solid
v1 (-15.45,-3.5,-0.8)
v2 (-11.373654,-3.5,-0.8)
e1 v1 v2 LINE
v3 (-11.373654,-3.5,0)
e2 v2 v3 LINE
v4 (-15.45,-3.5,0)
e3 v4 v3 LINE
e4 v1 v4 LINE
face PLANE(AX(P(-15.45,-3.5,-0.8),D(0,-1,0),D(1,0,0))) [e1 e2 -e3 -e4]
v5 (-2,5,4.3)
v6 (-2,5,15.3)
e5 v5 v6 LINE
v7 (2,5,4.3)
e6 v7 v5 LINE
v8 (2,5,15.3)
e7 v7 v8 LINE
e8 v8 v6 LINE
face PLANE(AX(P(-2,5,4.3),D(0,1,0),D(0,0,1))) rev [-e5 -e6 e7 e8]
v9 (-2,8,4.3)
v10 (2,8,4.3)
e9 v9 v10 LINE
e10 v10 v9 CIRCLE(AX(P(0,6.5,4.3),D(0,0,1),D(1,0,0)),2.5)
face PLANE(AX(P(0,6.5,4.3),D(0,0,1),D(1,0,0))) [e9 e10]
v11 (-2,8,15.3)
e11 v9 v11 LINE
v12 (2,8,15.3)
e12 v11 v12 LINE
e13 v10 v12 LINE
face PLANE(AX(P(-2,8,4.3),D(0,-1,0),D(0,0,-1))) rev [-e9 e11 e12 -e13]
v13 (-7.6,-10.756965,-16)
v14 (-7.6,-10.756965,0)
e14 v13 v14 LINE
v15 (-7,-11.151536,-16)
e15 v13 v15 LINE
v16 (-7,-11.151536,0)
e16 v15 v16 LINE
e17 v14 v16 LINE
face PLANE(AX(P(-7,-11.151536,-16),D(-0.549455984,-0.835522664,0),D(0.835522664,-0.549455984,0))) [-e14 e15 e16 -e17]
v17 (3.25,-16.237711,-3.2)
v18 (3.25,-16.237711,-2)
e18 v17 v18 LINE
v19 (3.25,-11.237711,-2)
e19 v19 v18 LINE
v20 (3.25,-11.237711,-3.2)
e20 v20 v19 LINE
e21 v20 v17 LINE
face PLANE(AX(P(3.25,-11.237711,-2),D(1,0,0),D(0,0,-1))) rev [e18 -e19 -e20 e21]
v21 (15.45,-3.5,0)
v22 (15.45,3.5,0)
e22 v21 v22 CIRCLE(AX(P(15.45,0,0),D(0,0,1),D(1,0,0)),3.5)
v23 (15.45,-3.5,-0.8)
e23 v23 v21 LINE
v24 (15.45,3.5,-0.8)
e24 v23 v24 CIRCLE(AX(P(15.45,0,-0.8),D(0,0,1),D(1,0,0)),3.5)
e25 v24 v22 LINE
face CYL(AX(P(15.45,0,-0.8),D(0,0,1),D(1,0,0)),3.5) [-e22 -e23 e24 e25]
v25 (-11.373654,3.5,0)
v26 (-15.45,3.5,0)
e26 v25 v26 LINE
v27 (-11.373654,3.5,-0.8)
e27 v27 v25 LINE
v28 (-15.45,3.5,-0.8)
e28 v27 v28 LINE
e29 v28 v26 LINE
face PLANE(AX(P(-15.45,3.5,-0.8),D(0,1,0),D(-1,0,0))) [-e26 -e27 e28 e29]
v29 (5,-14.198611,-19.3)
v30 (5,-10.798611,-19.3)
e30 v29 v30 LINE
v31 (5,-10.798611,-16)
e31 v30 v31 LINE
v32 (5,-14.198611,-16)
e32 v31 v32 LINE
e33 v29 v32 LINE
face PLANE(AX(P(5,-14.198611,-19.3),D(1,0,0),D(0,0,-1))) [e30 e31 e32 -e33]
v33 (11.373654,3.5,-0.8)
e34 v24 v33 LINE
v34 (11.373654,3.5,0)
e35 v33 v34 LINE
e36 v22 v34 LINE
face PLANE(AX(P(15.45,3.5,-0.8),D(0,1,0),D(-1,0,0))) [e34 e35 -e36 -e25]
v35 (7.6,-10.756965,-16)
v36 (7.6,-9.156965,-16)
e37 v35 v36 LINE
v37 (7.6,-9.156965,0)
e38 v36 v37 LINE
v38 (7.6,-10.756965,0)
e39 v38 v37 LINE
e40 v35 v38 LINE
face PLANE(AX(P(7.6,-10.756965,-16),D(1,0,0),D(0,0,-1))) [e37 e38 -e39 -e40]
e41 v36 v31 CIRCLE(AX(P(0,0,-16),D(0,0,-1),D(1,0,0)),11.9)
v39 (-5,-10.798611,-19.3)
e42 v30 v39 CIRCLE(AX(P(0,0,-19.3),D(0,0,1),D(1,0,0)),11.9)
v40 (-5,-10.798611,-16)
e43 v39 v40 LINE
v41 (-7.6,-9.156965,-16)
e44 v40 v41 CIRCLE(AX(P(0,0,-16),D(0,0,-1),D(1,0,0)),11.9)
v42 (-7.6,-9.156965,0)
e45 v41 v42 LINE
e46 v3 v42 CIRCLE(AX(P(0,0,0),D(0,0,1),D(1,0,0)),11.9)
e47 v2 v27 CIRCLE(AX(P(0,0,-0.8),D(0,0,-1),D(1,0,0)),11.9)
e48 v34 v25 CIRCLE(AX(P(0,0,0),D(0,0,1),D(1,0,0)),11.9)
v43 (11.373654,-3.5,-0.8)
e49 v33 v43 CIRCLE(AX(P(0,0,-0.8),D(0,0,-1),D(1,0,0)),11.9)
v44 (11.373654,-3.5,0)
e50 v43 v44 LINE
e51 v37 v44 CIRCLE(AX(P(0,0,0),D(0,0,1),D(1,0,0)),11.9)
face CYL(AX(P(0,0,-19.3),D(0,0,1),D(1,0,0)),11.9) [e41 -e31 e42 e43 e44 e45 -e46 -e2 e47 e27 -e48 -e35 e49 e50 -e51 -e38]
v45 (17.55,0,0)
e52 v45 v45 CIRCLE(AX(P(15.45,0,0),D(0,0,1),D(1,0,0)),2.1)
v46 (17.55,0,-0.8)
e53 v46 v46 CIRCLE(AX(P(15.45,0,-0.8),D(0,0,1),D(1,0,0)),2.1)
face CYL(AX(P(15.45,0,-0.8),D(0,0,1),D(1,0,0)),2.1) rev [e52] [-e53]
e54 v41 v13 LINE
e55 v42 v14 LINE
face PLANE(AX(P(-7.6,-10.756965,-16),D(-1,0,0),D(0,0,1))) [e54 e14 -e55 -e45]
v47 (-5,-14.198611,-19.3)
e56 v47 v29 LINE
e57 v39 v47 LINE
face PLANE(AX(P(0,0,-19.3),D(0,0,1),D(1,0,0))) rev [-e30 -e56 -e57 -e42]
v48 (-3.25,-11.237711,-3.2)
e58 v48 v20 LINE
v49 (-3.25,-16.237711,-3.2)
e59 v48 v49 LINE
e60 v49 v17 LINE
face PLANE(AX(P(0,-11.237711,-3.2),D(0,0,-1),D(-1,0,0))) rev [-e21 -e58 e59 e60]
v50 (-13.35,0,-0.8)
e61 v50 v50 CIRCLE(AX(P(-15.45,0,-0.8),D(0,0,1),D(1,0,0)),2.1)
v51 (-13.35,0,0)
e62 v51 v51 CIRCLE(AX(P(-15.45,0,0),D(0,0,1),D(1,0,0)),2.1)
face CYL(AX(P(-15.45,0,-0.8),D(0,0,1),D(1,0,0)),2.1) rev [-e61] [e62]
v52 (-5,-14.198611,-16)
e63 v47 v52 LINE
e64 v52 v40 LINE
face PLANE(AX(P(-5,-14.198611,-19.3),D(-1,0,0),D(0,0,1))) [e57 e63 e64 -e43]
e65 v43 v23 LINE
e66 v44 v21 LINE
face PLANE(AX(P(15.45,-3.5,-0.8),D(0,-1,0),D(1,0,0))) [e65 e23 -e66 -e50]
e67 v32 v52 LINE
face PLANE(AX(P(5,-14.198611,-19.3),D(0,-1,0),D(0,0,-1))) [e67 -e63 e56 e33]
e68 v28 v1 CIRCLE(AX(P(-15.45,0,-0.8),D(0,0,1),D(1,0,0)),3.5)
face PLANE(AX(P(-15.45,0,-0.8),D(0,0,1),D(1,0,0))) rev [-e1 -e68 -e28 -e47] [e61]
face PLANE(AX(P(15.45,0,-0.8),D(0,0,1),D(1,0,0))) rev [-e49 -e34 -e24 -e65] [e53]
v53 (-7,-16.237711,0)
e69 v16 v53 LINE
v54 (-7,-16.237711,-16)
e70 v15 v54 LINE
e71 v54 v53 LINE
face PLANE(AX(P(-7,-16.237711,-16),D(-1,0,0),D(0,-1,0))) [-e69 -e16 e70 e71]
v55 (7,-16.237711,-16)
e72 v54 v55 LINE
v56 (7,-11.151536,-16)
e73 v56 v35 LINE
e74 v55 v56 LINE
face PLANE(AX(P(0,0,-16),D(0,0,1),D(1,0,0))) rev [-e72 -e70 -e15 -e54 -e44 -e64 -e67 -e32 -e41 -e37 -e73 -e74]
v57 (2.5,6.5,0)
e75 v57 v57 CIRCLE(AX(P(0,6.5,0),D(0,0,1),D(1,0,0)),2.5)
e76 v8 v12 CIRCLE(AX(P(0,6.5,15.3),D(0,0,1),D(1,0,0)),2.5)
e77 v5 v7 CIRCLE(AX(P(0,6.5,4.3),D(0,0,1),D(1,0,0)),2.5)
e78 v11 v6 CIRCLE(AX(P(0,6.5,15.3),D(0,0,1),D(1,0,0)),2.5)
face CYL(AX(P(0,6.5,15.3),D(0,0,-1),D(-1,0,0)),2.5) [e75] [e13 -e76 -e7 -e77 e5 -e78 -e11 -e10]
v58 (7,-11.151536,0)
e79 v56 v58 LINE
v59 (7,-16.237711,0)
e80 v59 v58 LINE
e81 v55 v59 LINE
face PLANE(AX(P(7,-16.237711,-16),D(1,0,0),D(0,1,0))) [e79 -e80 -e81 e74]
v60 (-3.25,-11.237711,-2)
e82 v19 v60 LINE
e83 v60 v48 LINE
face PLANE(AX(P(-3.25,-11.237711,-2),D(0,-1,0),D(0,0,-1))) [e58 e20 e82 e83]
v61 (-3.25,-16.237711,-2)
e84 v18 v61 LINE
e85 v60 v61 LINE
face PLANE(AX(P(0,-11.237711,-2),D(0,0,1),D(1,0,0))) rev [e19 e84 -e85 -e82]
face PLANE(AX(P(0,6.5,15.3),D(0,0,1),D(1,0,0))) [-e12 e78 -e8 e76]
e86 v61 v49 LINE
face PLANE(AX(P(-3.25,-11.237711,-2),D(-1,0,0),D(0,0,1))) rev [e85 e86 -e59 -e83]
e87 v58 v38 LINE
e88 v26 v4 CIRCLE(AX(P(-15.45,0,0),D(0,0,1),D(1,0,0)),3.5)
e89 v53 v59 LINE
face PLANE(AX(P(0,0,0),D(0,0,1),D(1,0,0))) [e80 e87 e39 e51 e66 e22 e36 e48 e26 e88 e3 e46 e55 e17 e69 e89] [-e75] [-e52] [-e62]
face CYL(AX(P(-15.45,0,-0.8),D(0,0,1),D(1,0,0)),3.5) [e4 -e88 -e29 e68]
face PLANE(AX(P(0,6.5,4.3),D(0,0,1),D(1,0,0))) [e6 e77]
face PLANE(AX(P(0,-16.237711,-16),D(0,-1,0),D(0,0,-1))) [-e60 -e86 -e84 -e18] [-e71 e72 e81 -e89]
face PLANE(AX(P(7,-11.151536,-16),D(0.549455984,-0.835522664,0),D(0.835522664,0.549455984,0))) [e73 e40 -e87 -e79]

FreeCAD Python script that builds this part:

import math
import FreeCAD as App
import Part
import Sketcher

V = App.Vector
Q = App.Units.Quantity


def add_polygon(sketch, points):
    """Adds a closed chain of lines whose ends are joined by coincident constraints."""
    first, n = sketch.GeometryCount, len(points)
    for a, b in zip(points, points[1:] + points[:1]):
        sketch.addGeometry(Part.LineSegment(App.Vector(*a, 0), App.Vector(*b, 0)), False)
    for i in range(n):
        sketch.addConstraint(Sketcher.Constraint("Coincident", first + i, 2, first + (i + 1) % n, 1))

doc = App.newDocument("Part")
body = doc.addObject("PartDesign::Body", "Body")

# Sketch on XY plane
sketch1 = body.newObject("Sketcher::SketchObject", "Sketch")
sketch1.AttachmentSupport = (doc.getObject("XY_Plane"), [""])
sketch1.MapMode = "FlatFace"
sketch1.addGeometry(Part.LineSegment(V(-5, -14.2, 0), V(5, -14.2, 0)), False)
sketch1.addGeometry(Part.LineSegment(V(5, -14.2, 0), V(5, -10.8, 0)), False)
sketch1.addGeometry(Part.ArcOfCircle(Part.Circle(V(0, 0, 0), V(0, 0, 1), 11.9), math.radians(-65), math.radians(245)), False)
sketch1.addGeometry(Part.LineSegment(V(-5, -10.8, 0), V(-5, -14.2, 0)), False)
sketch1.addConstraint(Sketcher.Constraint("Coincident", 0, 2, 1, 1))
sketch1.addConstraint(Sketcher.Constraint("Coincident", 1, 2, 2, 1))
sketch1.addConstraint(Sketcher.Constraint("Coincident", 2, 2, 3, 1))
sketch1.addConstraint(Sketcher.Constraint("Coincident", 3, 2, 0, 1))
sketch1.addConstraint(Sketcher.Constraint("Horizontal", 0))
sketch1.addConstraint(Sketcher.Constraint("Vertical", 1))
sketch1.addConstraint(Sketcher.Constraint("Vertical", 3))
sketch1.addConstraint(Sketcher.Constraint("Coincident", 2, 3, -1, 1))
sketch1.addConstraint(Sketcher.Constraint("Horizontal", 1, 2, 2, 2))
sketch1.addConstraint(Sketcher.Constraint("Radius", 2, Q("11.9 mm")))
sketch1.addConstraint(Sketcher.Constraint("DistanceX", 0, 1, 0, 2, Q("10 mm")))
sketch1.addConstraint(Sketcher.Constraint("DistanceY", 1, 1, 1, 2, Q("3.4 mm")))
pad1 = body.newObject("PartDesign::Pad", "Pad")
pad1.Profile = sketch1
pad1.Length = 19.3
pad1.Reversed = True

# Sketch on XY plane
sketch2 = body.newObject("Sketcher::SketchObject", "Sketch001")
sketch2.AttachmentSupport = (doc.getObject("XY_Plane"), [""])
sketch2.MapMode = "FlatFace"
sketch2.addGeometry(Part.LineSegment(V(-7, -11.2, 0), V(-7, -16.2, 0)), False)
sketch2.addGeometry(Part.LineSegment(V(-7, -16.2, 0), V(7, -16.2, 0)), False)
sketch2.addGeometry(Part.LineSegment(V(7, -16.2, 0), V(7, -11.2, 0)), False)
sketch2.addGeometry(Part.LineSegment(V(7, -11.2, 0), V(7.6, -10.8, 0)), False)
sketch2.addGeometry(Part.LineSegment(V(7.6, -10.8, 0), V(7.6, -9.2, 0)), False)
sketch2.addGeometry(Part.ArcOfCircle(Part.Circle(V(0, 0, 0), V(0, 0, 1), 11.9), math.radians(-65.15), math.radians(-50.31)), False)
sketch2.addGeometry(Part.LineSegment(V(5, -10.8, 0), V(5, -14.2, 0)), False)
sketch2.addGeometry(Part.LineSegment(V(5, -14.2, 0), V(-5, -14.2, 0)), False)
sketch2.addGeometry(Part.LineSegment(V(-5, -14.2, 0), V(-5, -10.8, 0)), False)
sketch2.addGeometry(Part.ArcOfCircle(Part.Circle(V(0, 0, 0), V(0, 0, 1), 11.9), math.radians(-129.69), math.radians(-114.85)), False)
sketch2.addGeometry(Part.LineSegment(V(-7.6, -9.2, 0), V(-7.6, -10.8, 0)), False)
sketch2.addGeometry(Part.LineSegment(V(-7.6, -10.8, 0), V(-7, -11.2, 0)), False)
sketch2.addConstraint(Sketcher.Constraint("Coincident", 0, 2, 1, 1))
sketch2.addConstraint(Sketcher.Constraint("Coincident", 1, 2, 2, 1))
sketch2.addConstraint(Sketcher.Constraint("Coincident", 2, 2, 3, 1))
sketch2.addConstraint(Sketcher.Constraint("Coincident", 3, 2, 4, 1))
sketch2.addConstraint(Sketcher.Constraint("Coincident", 4, 2, 5, 2))
sketch2.addConstraint(Sketcher.Constraint("Coincident", 5, 1, 6, 1))
sketch2.addConstraint(Sketcher.Constraint("Coincident", 6, 2, 7, 1))
sketch2.addConstraint(Sketcher.Constraint("Coincident", 7, 2, 8, 1))
sketch2.addConstraint(Sketcher.Constraint("Coincident", 8, 2, 9, 2))
sketch2.addConstraint(Sketcher.Constraint("Coincident", 9, 1, 10, 1))
sketch2.addConstraint(Sketcher.Constraint("Coincident", 10, 2, 11, 1))
sketch2.addConstraint(Sketcher.Constraint("Coincident", 11, 2, 0, 1))
sketch2.addConstraint(Sketcher.Constraint("Vertical", 0))
sketch2.addConstraint(Sketcher.Constraint("Horizontal", 1))
sketch2.addConstraint(Sketcher.Constraint("Vertical", 2))
sketch2.addConstraint(Sketcher.Constraint("Vertical", 4))
sketch2.addConstraint(Sketcher.Constraint("Vertical", 6))
sketch2.addConstraint(Sketcher.Constraint("Horizontal", 7))
sketch2.addConstraint(Sketcher.Constraint("Vertical", 8))
sketch2.addConstraint(Sketcher.Constraint("Vertical", 10))
sketch2.addConstraint(Sketcher.Constraint("Coincident", 5, 3, -1, 1))
sketch2.addConstraint(Sketcher.Constraint("Coincident", 9, 3, -1, 1))
sketch2.addConstraint(Sketcher.Constraint("Equal", 5, 9))
sketch2.addConstraint(Sketcher.Constraint("Symmetric", 3, 2, 10, 2, -2))
sketch2.addConstraint(Sketcher.Constraint("Symmetric", 2, 2, 11, 2, -2))
sketch2.addConstraint(Sketcher.Constraint("Horizontal", 5, 1, 8, 2))
sketch2.addConstraint(Sketcher.Constraint("Radius", 5, Q("11.9 mm")))
sketch2.addConstraint(Sketcher.Constraint("DistanceX", 1, 1, 1, 2, Q("14 mm")))
sketch2.addConstraint(Sketcher.Constraint("DistanceX", 7, 2, 7, 1, Q("10 mm")))
sketch2.addConstraint(Sketcher.Constraint("DistanceY", 4, 1, 4, 2, Q("1.6 mm")))
sketch2.addConstraint(Sketcher.Constraint("DistanceY", 6, 2, 6, 1, Q("3.4 mm")))
sketch2.addConstraint(Sketcher.Constraint("DistanceX", -1, 1, 3, 2, Q("7.6 mm")))
sketch2.addConstraint(Sketcher.Constraint("DistanceY", 1, 2, 5, 1, Q("5.4391 mm")))
sketch2.addConstraint(Sketcher.Constraint("DistanceY", 0, 2, 0, 1, Q("5.086175 mm")))
pad2 = body.newObject("PartDesign::Pad", "Pad001")
pad2.Profile = sketch2
pad2.Length = 16
pad2.Reversed = True

# Sketch on XY plane
sketch3 = body.newObject("Sketcher::SketchObject", "Sketch002")
sketch3.AttachmentSupport = (doc.getObject("XY_Plane"), [""])
sketch3.MapMode = "FlatFace"
sketch3.addGeometry(Part.LineSegment(V(-11.4, 3.5, 0), V(-15.4, 3.5, 0)), False)
sketch3.addGeometry(Part.ArcOfCircle(Part.Circle(V(-15.4, 0, 0), V(0, 0, 1), 3.5), math.radians(90), math.radians(270)), False)
sketch3.addGeometry(Part.LineSegment(V(-15.4, -3.5, 0), V(-11.4, -3.5, 0)), False)
sketch3.addGeometry(Part.ArcOfCircle(Part.Circle(V(0, 0, 0), V(0, 0, 1), 11.9), math.radians(163), math.radians(197)), False)
sketch3.addGeometry(Part.Circle(V(-15.4, 0, 0), V(0, 0, 1), 2.1), False)
sketch3.addGeometry(Part.LineSegment(V(15.4, 3.5, 0), V(11.4, 3.5, 0)), False)
sketch3.addGeometry(Part.ArcOfCircle(Part.Circle(V(0, 0, 0), V(0, 0, 1), 11.9), math.radians(-17), math.radians(17)), False)
sketch3.addGeometry(Part.LineSegment(V(11.4, -3.5, 0), V(15.4, -3.5, 0)), False)
sketch3.addGeometry(Part.ArcOfCircle(Part.Circle(V(15.4, 0, 0), V(0, 0, 1), 3.5), math.radians(-90), math.radians(90)), False)
sketch3.addGeometry(Part.Circle(V(15.4, 0, 0), V(0, 0, 1), 2.1), False)
sketch3.addConstraint(Sketcher.Constraint("Tangent", 0, 2, 1, 1))
sketch3.addConstraint(Sketcher.Constraint("Tangent", 1, 2, 2, 1))
sketch3.addConstraint(Sketcher.Constraint("Coincident", 2, 2, 3, 2))
sketch3.addConstraint(Sketcher.Constraint("Coincident", 3, 1, 0, 1))
sketch3.addConstraint(Sketcher.Constraint("Coincident", 5, 2, 6, 2))
sketch3.addConstraint(Sketcher.Constraint("Coincident", 6, 1, 7, 1))
sketch3.addConstraint(Sketcher.Constraint("Tangent", 7, 2, 8, 1))
sketch3.addConstraint(Sketcher.Constraint("Tangent", 8, 2, 5, 1))
sketch3.addConstraint(Sketcher.Constraint("Horizontal", 0))
sketch3.addConstraint(Sketcher.Constraint("Horizontal", 2))
sketch3.addConstraint(Sketcher.Constraint("Horizontal", 5))
sketch3.addConstraint(Sketcher.Constraint("Horizontal", 7))
sketch3.addConstraint(Sketcher.Constraint("Coincident", 3, 3, -1, 1))
sketch3.addConstraint(Sketcher.Constraint("Coincident", 6, 3, -1, 1))
sketch3.addConstraint(Sketcher.Constraint("Coincident", 4, 3, 1, 3))
sketch3.addConstraint(Sketcher.Constraint("Coincident", 9, 3, 8, 3))
sketch3.addConstraint(Sketcher.Constraint("Equal", 3, 6))
sketch3.addConstraint(Sketcher.Constraint("Equal", 1, 8))
sketch3.addConstraint(Sketcher.Constraint("Equal", 4, 9))
sketch3.addConstraint(Sketcher.Constraint("Symmetric", 1, 3, 8, 3, -1, 1))
sketch3.addConstraint(Sketcher.Constraint("PointOnObject", 1, 3, -1))
sketch3.addConstraint(Sketcher.Constraint("Diameter", 4, Q("4.2 mm")))
sketch3.addConstraint(Sketcher.Constraint("Radius", 1, Q("3.5 mm")))
sketch3.addConstraint(Sketcher.Constraint("Radius", 3, Q("11.9 mm")))
sketch3.addConstraint(Sketcher.Constraint("DistanceX", 1, 3, 8, 3, Q("30.9 mm")))
pad3 = body.newObject("PartDesign::Pad", "Pad002")
pad3.Profile = sketch3
pad3.Length = 0.8
pad3.Reversed = True

# Sketch on XY plane
sketch4 = body.newObject("Sketcher::SketchObject", "Sketch003")
sketch4.AttachmentSupport = (doc.getObject("XY_Plane"), [""])
sketch4.MapMode = "FlatFace"
sketch4.addGeometry(Part.Circle(V(0, 6.5, 0), V(0, 0, 1), 2.5), False)
sketch4.addConstraint(Sketcher.Constraint("PointOnObject", 0, 3, -2))
sketch4.addConstraint(Sketcher.Constraint("Diameter", 0, Q("5 mm")))
sketch4.addConstraint(Sketcher.Constraint("DistanceY", -1, 1, 0, 3, Q("6.5 mm")))
pad4 = body.newObject("PartDesign::Pad", "Pad003")
pad4.Profile = sketch4
pad4.Length = 15.3

# Sketch on XY plane
sketch5 = body.newObject("Sketcher::SketchObject", "Sketch004")
sketch5.AttachmentSupport = (doc.getObject("XY_Plane"), [""])
sketch5.MapMode = "FlatFace"
sketch5.AttachmentOffset = App.Placement(V(0, 0, 4.3), App.Rotation())
sketch5.addGeometry(Part.LineSegment(V(-2, 8, 0), V(2, 8, 0)), False)
sketch5.addGeometry(Part.ArcOfCircle(Part.Circle(V(0, 6.5, 0), V(0, 0, 1), 2.5), math.radians(37), math.radians(143)), False)
sketch5.addGeometry(Part.LineSegment(V(2, 5, 0), V(-2, 5, 0)), False)
sketch5.addGeometry(Part.ArcOfCircle(Part.Circle(V(0, 6.5, 0), V(0, 0, 1), 2.5), math.radians(-143), math.radians(-37)), False)
sketch5.addConstraint(Sketcher.Constraint("Coincident", 0, 1, 1, 2))
sketch5.addConstraint(Sketcher.Constraint("Coincident", 1, 1, 0, 2))
sketch5.addConstraint(Sketcher.Constraint("Coincident", 2, 1, 3, 2))
sketch5.addConstraint(Sketcher.Constraint("Coincident", 3, 1, 2, 2))
sketch5.addConstraint(Sketcher.Constraint("Horizontal", 0))
sketch5.addConstraint(Sketcher.Constraint("Horizontal", 2))
sketch5.addConstraint(Sketcher.Constraint("Coincident", 3, 3, 1, 3))
sketch5.addConstraint(Sketcher.Constraint("Equal", 1, 3))
sketch5.addConstraint(Sketcher.Constraint("PointOnObject", 1, 3, -2))
sketch5.addConstraint(Sketcher.Constraint("Vertical", 1, 1, 2, 1))
sketch5.addConstraint(Sketcher.Constraint("Radius", 1, Q("2.5 mm")))
sketch5.addConstraint(Sketcher.Constraint("DistanceX", 0, 1, 0, 2, Q("4 mm")))
sketch5.addConstraint(Sketcher.Constraint("DistanceY", -1, 1, 0, 1, Q("8 mm")))
pocket1 = body.newObject("PartDesign::Pocket", "Pocket")
pocket1.Profile = sketch5
pocket1.Length = 11
pocket1.Reversed = True

# Sketch on XZ plane
sketch6 = body.newObject("Sketcher::SketchObject", "Sketch005")
sketch6.AttachmentSupport = (doc.getObject("XZ_Plane"), [""])
sketch6.MapMode = "FlatFace"
sketch6.AttachmentOffset = App.Placement(V(0, 0, 16.237711), App.Rotation())
add_polygon(sketch6, [(3.2, -2), (-3.2, -2), (-3.2, -3.2), (3.2, -3.2)])  # lines 0-3
sketch6.addConstraint(Sketcher.Constraint("Horizontal", 0))
sketch6.addConstraint(Sketcher.Constraint("Vertical", 1))
sketch6.addConstraint(Sketcher.Constraint("Horizontal", 2))
sketch6.addConstraint(Sketcher.Constraint("Vertical", 3))
sketch6.addConstraint(Sketcher.Constraint("DistanceX", 0, 2, 0, 1, Q("6.5 mm")))
sketch6.addConstraint(Sketcher.Constraint("DistanceY", 1, 2, 1, 1, Q("1.2 mm")))
sketch6.addConstraint(Sketcher.Constraint("DistanceY", 0, 2, -1, 1, Q("2 mm")))
sketch6.addConstraint(Sketcher.Constraint("DistanceX", 0, 2, -1, 1, Q("3.25 mm")))
pocket2 = body.newObject("PartDesign::Pocket", "Pocket001")
pocket2.Profile = sketch6
pocket2.Length = 5

doc.recompute()
